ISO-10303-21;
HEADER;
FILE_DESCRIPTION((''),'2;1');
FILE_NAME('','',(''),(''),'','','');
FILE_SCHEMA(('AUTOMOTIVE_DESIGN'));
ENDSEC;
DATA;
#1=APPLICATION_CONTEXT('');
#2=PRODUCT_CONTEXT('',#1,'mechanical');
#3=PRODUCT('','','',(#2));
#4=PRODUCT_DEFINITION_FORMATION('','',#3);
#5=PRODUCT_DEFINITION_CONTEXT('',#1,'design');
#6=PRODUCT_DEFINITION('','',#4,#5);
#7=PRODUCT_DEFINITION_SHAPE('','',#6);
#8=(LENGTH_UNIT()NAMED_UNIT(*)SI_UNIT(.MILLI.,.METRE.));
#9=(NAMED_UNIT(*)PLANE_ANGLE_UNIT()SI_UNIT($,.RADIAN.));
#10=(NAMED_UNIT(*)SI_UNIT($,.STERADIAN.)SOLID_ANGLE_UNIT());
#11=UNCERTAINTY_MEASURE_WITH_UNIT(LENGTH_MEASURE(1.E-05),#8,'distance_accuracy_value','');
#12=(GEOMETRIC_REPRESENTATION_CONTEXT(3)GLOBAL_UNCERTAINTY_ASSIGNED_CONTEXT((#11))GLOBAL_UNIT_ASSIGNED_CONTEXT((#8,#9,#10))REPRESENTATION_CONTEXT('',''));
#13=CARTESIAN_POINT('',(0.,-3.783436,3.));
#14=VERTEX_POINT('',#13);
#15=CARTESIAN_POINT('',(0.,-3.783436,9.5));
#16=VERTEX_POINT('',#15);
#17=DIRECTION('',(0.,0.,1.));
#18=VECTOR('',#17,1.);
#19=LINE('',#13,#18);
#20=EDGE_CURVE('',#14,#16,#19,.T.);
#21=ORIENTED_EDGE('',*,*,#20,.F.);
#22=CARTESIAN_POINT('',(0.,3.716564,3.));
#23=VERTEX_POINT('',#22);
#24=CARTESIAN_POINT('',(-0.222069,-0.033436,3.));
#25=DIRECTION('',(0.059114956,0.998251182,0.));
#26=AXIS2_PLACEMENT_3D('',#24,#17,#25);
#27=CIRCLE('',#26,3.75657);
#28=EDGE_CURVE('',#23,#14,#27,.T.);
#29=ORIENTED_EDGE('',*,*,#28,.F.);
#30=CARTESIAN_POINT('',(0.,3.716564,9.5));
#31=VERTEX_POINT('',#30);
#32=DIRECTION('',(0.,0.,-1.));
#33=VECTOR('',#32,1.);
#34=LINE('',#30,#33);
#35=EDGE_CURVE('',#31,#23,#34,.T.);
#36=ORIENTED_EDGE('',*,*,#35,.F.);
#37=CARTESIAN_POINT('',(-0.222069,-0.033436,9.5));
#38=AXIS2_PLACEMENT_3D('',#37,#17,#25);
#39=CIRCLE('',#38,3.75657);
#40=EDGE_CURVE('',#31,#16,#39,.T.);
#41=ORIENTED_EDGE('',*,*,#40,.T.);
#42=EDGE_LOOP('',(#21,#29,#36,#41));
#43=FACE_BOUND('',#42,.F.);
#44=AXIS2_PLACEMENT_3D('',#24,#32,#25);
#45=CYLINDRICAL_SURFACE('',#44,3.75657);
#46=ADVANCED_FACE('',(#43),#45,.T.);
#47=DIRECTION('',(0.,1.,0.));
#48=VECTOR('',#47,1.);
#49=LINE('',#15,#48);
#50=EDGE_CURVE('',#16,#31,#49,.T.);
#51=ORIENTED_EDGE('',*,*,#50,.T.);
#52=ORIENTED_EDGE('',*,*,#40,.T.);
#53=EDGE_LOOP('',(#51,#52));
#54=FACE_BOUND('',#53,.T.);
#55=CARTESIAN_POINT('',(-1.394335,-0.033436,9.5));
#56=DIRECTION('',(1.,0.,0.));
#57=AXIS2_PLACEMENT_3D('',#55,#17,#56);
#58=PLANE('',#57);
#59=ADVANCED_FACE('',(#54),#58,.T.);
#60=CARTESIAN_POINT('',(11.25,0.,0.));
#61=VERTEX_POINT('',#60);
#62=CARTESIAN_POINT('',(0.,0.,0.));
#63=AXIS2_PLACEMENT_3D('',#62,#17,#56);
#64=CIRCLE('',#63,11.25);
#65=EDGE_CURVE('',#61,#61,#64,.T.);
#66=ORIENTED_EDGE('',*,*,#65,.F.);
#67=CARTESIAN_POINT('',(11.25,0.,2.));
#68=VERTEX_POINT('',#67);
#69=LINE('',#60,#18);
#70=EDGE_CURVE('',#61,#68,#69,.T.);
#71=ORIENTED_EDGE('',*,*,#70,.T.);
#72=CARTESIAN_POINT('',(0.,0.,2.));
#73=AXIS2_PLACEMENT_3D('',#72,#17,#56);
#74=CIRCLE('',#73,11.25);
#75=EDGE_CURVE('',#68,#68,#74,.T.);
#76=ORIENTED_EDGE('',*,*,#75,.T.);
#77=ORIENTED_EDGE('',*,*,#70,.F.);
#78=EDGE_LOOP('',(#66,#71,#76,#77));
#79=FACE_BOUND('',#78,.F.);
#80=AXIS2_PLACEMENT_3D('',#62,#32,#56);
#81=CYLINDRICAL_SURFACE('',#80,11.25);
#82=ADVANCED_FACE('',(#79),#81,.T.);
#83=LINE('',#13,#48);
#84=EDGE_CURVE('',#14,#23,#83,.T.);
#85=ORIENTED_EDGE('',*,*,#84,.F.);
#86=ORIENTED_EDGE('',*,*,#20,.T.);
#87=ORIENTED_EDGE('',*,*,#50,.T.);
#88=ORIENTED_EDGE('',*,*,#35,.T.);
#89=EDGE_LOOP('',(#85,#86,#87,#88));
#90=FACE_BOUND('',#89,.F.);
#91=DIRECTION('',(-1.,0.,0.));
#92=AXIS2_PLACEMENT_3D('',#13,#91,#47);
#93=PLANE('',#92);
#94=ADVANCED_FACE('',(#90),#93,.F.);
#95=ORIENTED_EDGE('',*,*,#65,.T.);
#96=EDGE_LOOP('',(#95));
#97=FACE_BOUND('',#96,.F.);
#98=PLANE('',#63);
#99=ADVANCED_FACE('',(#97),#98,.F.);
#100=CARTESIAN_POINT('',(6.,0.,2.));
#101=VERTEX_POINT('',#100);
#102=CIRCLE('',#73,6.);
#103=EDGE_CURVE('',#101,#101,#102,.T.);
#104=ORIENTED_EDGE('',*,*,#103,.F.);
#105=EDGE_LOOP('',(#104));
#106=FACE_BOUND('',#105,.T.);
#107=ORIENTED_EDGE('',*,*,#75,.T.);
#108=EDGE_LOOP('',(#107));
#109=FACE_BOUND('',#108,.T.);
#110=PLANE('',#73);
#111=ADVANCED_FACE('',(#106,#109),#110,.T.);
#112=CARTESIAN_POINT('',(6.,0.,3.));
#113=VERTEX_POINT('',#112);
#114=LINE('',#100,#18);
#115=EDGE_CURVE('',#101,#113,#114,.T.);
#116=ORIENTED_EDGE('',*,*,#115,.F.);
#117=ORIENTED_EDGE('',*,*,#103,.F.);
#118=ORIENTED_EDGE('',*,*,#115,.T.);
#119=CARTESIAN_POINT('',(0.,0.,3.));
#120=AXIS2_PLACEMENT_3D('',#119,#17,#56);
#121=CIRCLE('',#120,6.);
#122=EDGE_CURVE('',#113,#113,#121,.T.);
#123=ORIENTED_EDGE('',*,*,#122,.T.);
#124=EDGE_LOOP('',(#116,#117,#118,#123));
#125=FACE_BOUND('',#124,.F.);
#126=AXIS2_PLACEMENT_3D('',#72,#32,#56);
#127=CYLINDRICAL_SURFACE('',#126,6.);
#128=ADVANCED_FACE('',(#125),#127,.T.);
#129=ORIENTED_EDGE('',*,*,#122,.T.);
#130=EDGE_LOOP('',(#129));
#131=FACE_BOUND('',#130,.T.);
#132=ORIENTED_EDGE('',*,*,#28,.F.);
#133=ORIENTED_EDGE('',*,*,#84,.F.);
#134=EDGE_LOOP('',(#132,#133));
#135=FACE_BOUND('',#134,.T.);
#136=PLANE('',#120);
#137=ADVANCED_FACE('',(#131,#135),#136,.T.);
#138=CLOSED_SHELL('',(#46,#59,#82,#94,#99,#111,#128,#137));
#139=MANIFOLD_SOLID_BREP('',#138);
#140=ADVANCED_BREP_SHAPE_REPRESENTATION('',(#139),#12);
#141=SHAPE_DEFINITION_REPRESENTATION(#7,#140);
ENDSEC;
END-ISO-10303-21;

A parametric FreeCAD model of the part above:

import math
import FreeCAD as App
import Part
import Sketcher

V = App.Vector

doc = App.newDocument("Part")
body = doc.addObject("PartDesign::Body", "Body")

# Sketch on XY plane
sketch1 = body.newObject("Sketcher::SketchObject", "Sketch")
sketch1.AttachmentSupport = (doc.getObject("XY_Plane"), [""])
sketch1.MapMode = "FlatFace"
sketch1.addGeometry(Part.Circle(V(0, 0, 0), V(0, 0, 1), 11.25), False)
sketch1.addConstraint([
    Sketcher.Constraint("Coincident", 0, 3, -1, 1),
    Sketcher.Constraint("Diameter", 0, 22.5),
])
pad1 = body.newObject("PartDesign::Pad", "Pad")
pad1.Profile = sketch1
pad1.Length = 2

# Sketch on XY plane
sketch2 = body.newObject("Sketcher::SketchObject", "Sketch001")
sketch2.AttachmentSupport = (doc.getObject("XY_Plane"), [""])
sketch2.MapMode = "FlatFace"
sketch2.AttachmentOffset = App.Placement(V(0, 0, 2), App.Rotation())
sketch2.addGeometry(Part.Circle(V(0, 0, 0), V(0, 0, 1), 6), False)
sketch2.addConstraint([
    Sketcher.Constraint("Coincident", 0, 3, -1, 1),
    Sketcher.Constraint("Diameter", 0, 12.0),
])
pad2 = body.newObject("PartDesign::Pad", "Pad001")
pad2.Profile = sketch2
pad2.Length = 1

# Sketch on XY plane
sketch3 = body.newObject("Sketcher::SketchObject", "Sketch002")
sketch3.AttachmentSupport = (doc.getObject("XY_Plane"), [""])
sketch3.MapMode = "FlatFace"
sketch3.AttachmentOffset = App.Placement(V(0, 0, 3), App.Rotation())
sketch3.addGeometry([
    Part.ArcOfCircle(Part.Circle(V(-0.222069, -0.033436, 0), V(0, 0, 1), 3.75657), math.radians(86.610987), math.radians(273.389013)),
    Part.LineSegment(V(0, -3.783436, 0), V(0, 3.716564, 0)),
], False)
sketch3.addConstraint([
    Sketcher.Constraint("Coincident", 0, 1, 1, 2),
    Sketcher.Constraint("Coincident", 1, 1, 0, 2),
    Sketcher.Constraint("Vertical", 1),
    Sketcher.Constraint("PointOnObject", 0, 1, -2),
    Sketcher.Constraint("DistanceY", 1, 1, 1, 2, 7.5),
    Sketcher.Constraint("Radius", 0, 3.75657),
    Sketcher.Constraint("DistanceY", 0, 3, -1, 1, 0.033436),
])
pad3 = body.newObject("PartDesign::Pad", "Pad002")
pad3.Profile = sketch3
pad3.Length = 6.5

# Sketch on XY plane
sketch4 = body.newObject("Sketcher::SketchObject", "Sketch003")
sketch4.AttachmentSupport = (doc.getObject("XY_Plane"), [""])
sketch4.MapMode = "FlatFace"
sketch4.AttachmentOffset = App.Placement(V(0, 0, 3), App.Rotation())
sketch4.addGeometry([
    Part.ArcOfCircle(Part.Circle(V(-0.222069, -0.033436, 0), V(0, 0, 1), 3.75657), math.radians(86.610987), math.radians(273.389013)),
    Part.LineSegment(V(0, -3.783436, 0), V(0, 3.716564, 0)),
], False)
sketch4.addConstraint([
    Sketcher.Constraint("Coincident", 0, 1, 1, 2),
    Sketcher.Constraint("Coincident", 1, 1, 0, 2),
    Sketcher.Constraint("Vertical", 1),
    Sketcher.Constraint("PointOnObject", 0, 1, -2),
    Sketcher.Constraint("DistanceY", 1, 1, 1, 2, 7.5),
    Sketcher.Constraint("Radius", 0, 3.75657),
    Sketcher.Constraint("DistanceY", 0, 3, -1, 1, 0.033436),
])
pad4 = body.newObject("PartDesign::Pad", "Pad003")
pad4.Profile = sketch4
pad4.Length = 6

doc.recompute()
